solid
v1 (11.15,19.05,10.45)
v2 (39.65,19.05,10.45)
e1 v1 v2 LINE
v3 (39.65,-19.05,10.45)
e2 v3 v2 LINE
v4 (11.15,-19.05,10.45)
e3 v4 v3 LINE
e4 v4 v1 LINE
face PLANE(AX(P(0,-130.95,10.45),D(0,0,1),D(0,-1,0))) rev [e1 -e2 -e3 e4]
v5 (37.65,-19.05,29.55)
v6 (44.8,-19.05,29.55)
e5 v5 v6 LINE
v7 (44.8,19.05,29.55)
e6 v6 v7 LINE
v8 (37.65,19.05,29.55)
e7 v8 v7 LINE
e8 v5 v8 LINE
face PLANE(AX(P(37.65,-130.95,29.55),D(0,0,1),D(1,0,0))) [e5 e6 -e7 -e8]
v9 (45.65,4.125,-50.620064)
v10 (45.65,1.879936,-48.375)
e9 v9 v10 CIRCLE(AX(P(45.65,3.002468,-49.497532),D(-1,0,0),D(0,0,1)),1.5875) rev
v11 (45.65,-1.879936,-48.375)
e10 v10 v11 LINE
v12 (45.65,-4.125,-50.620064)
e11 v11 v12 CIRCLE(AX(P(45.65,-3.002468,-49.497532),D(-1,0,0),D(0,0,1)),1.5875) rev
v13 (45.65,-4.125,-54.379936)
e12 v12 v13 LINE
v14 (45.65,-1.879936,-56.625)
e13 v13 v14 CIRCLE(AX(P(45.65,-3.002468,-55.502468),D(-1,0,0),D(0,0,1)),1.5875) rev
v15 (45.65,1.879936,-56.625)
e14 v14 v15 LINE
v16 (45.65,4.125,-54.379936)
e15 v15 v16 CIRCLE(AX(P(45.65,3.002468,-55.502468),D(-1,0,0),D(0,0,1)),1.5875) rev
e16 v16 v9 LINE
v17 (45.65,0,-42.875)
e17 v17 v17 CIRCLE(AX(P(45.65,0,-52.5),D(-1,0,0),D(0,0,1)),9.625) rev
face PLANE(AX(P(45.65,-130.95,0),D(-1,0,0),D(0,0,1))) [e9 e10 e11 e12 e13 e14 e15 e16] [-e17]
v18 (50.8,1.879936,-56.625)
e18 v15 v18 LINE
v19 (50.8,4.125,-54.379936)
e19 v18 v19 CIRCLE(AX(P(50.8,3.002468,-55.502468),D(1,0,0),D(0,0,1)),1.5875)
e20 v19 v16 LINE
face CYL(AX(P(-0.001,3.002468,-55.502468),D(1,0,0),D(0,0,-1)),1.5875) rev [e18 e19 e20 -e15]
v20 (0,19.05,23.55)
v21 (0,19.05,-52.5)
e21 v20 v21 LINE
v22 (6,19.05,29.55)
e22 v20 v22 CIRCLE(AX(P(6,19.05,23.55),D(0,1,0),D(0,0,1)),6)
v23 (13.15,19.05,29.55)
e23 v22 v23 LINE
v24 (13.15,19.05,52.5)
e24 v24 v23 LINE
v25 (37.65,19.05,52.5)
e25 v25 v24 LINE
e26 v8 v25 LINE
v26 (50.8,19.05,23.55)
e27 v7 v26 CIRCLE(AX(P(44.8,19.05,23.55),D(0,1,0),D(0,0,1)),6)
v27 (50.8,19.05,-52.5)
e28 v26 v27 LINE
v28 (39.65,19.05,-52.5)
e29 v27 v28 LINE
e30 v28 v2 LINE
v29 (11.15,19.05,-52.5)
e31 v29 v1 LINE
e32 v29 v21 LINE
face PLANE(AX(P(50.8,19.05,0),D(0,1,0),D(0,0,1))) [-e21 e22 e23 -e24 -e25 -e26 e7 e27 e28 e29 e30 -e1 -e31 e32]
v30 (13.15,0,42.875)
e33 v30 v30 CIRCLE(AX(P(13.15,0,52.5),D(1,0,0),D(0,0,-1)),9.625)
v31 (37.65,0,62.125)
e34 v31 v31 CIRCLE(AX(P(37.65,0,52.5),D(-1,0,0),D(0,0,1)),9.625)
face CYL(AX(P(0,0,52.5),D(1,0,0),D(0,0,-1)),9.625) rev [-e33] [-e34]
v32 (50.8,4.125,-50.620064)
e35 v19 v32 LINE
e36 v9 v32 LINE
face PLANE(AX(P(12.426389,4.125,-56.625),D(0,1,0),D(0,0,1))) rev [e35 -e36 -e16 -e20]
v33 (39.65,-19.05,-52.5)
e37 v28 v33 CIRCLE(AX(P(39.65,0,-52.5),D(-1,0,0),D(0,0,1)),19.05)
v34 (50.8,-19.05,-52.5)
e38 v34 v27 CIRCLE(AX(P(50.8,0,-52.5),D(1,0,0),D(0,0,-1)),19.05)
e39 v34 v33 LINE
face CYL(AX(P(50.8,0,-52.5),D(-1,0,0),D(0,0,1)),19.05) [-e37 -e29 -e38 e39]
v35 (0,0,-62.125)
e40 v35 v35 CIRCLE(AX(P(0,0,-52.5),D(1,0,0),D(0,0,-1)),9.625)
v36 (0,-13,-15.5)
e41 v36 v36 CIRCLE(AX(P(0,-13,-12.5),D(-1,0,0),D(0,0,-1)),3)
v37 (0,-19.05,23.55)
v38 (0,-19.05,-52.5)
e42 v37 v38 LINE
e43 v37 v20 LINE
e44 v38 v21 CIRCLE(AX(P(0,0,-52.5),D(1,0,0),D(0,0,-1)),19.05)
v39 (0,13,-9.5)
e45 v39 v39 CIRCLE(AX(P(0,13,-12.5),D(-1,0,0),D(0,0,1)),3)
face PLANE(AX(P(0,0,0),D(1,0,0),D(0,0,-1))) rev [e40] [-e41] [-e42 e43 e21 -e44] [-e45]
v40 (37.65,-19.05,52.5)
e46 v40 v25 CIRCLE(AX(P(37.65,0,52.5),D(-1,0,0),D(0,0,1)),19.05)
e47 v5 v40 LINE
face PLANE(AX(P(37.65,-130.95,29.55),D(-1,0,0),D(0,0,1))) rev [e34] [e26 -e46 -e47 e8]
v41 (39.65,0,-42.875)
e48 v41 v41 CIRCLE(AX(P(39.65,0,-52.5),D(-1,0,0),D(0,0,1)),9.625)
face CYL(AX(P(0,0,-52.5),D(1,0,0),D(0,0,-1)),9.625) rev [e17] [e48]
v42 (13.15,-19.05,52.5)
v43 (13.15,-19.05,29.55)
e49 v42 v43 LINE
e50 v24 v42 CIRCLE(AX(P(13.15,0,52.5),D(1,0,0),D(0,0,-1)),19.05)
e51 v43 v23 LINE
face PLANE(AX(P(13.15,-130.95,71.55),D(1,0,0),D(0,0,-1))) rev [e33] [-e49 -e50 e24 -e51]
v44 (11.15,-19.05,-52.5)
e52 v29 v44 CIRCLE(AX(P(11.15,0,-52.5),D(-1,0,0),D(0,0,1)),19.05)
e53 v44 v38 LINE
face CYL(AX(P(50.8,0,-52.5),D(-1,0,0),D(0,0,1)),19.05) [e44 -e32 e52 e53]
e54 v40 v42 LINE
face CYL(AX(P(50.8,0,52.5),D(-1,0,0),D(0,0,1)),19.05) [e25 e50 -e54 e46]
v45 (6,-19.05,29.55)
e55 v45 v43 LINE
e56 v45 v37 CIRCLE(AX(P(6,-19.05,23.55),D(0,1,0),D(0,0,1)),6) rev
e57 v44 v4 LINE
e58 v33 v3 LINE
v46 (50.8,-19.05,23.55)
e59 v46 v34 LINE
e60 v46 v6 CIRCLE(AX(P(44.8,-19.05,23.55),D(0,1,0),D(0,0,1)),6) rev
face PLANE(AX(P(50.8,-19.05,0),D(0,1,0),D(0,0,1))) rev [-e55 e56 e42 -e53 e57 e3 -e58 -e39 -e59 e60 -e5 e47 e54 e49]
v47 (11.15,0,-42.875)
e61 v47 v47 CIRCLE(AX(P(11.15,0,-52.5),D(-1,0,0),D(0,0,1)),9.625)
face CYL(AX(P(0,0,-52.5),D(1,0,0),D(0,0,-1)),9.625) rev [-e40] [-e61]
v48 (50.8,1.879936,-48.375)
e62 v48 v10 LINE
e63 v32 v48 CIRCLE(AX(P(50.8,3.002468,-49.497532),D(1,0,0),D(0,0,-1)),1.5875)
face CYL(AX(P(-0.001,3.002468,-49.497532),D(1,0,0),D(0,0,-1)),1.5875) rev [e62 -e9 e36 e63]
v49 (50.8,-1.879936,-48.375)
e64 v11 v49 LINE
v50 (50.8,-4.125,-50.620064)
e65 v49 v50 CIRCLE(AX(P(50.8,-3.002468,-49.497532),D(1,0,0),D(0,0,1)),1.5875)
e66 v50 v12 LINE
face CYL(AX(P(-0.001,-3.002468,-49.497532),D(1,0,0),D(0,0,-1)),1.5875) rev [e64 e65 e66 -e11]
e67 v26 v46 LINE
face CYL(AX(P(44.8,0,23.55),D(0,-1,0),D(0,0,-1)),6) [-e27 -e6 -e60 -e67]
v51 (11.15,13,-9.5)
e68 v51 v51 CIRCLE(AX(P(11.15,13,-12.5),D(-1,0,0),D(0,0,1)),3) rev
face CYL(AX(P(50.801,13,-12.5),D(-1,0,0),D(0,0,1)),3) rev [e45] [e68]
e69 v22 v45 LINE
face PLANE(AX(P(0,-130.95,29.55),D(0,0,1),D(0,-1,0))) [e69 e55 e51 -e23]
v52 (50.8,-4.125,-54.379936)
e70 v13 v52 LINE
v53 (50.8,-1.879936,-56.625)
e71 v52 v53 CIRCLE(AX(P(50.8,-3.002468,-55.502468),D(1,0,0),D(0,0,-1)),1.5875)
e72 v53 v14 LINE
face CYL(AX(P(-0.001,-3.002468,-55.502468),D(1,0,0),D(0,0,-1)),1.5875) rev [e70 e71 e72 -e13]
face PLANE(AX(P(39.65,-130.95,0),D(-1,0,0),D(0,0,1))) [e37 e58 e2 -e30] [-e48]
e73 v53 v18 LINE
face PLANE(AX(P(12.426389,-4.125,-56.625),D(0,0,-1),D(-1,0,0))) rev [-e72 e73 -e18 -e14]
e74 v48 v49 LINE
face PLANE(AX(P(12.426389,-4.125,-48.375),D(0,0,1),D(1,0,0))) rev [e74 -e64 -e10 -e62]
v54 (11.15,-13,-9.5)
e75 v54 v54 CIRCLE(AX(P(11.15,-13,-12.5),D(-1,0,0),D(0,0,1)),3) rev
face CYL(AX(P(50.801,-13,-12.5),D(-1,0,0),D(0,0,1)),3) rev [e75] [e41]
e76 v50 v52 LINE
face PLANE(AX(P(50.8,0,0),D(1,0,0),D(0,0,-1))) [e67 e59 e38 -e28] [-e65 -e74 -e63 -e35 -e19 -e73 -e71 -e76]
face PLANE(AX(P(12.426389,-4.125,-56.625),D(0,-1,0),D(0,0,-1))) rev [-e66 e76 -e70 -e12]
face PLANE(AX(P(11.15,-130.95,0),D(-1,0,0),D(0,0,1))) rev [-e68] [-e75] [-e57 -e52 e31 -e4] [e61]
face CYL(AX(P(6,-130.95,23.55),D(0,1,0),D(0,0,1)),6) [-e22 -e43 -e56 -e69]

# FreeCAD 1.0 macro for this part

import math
import FreeCAD as App
import Part
import Sketcher

V = App.Vector
Q = App.Units.Quantity


def edges_at(feature, points):
    """Names of the edges that pass closest to the given points."""
    edges = feature.Shape.Edges
    near = lambda p: min(range(len(edges)), key=lambda i: edges[i].distToShape(Part.Vertex(*p))[0])
    return sorted({f"Edge{near(p) + 1}" for p in points})

doc = App.newDocument("Part")
params = doc.addObject("Spreadsheet::Sheet", "Params")
for row, (alias, value) in enumerate([
    ("sketch1_height", "105 mm"),
    ("sketch1_radius", "19.05 mm"),
    ("pad1_length", "50.8 mm"),
    ("sketch2_height", "82 mm"),
    ("sketch2_height2", "42 mm"),
    ("sketch2_width", "28.5 mm"),
    ("sketch2_width2", "13.15 mm"),
    ("pocket1_length", "150 mm"),
    ("sketch3_diameter", "19.25 mm"),
    ("sketch4_diameter", "19.25 mm"),
    ("sketch4_width", "8.25 mm"),
    ("pad2_length", "5.15 mm"),
    ("fillet_radius", "6 mm"),
    ("pocket3_length", "5.15 mm"),
    ("sketch6_diameter", "6 mm"),
    ("sketch7_diameter", "6 mm"),
], start=1):
    params.set(f"A{row}", alias)
    params.set(f"B{row}", "=" + value)
    params.setAlias(f"B{row}", alias)

body = doc.addObject("PartDesign::Body", "Body")

sketch1 = body.newObject("Sketcher::SketchObject", "Sketch")
sketch1.AttachmentSupport = (doc.getObject("YZ_Plane"), [""])
sketch1.MapMode = "FlatFace"
sketch1.addGeometry([
    Part.LineSegment(V(19, -52, 0), V(19, 52, 0)),
    Part.ArcOfCircle(Part.Circle(V(0, 52, 0), V(0, 0, 1), 19), math.radians(0), math.radians(180)),
    Part.LineSegment(V(-19, 52, 0), V(-19, -52, 0)),
    Part.ArcOfCircle(Part.Circle(V(0, -52, 0), V(0, 0, 1), 19), math.radians(180), math.radians(360)),
], False)
sketch1.addConstraint([
    Sketcher.Constraint("Tangent", 0, 2, 1, 1),
    Sketcher.Constraint("Tangent", 1, 2, 2, 1),
    Sketcher.Constraint("Tangent", 2, 2, 3, 1),
    Sketcher.Constraint("Tangent", 3, 2, 0, 1),
    Sketcher.Constraint("Vertical", 0),
    Sketcher.Constraint("Vertical", 2),
    Sketcher.Constraint("Symmetric", 1, 3, 3, 3, -1, 1),
    Sketcher.Constraint("DistanceY", 0, 1, 0, 2, Q("105 mm")),
    Sketcher.Constraint("Radius", 1, Q("19.05 mm")),
])
sketch1.setExpression("Constraints[7]", "Params.sketch1_height")
sketch1.setExpression("Constraints[8]", "Params.sketch1_radius")
pad1 = body.newObject("PartDesign::Pad", "Pad")
pad1.Profile = sketch1
pad1.setExpression("Length", "Params.pad1_length")

sketch2 = body.newObject("Sketcher::SketchObject", "Sketch001")
sketch2.AttachmentSupport = (doc.getObject("XZ_Plane"), [""])
sketch2.MapMode = "FlatFace"
sketch2.AttachmentOffset = App.Placement(V(0, 0, -19.05), App.Rotation())
sketch2.addGeometry([
    Part.LineSegment(V(11, -72, 0), V(11, 10, 0)),
    Part.LineSegment(V(11, 10, 0), V(40, 10, 0)),
    Part.LineSegment(V(40, 10, 0), V(40, -72, 0)),
    Part.LineSegment(V(40, -72, 0), V(11, -72, 0)),
    Part.LineSegment(V(38, 30, 0), V(38, 72, 0)),
    Part.LineSegment(V(38, 72, 0), V(51, 72, 0)),
    Part.LineSegment(V(51, 72, 0), V(51, 30, 0)),
    Part.LineSegment(V(51, 30, 0), V(38, 30, 0)),
    Part.LineSegment(V(0, 30, 0), V(0, 72, 0)),
    Part.LineSegment(V(0, 72, 0), V(13, 72, 0)),
    Part.LineSegment(V(13, 72, 0), V(13, 30, 0)),
    Part.LineSegment(V(13, 30, 0), V(0, 30, 0)),
], False)
sketch2.addConstraint([
    Sketcher.Constraint("Coincident", 0, 2, 1, 1),
    Sketcher.Constraint("Coincident", 1, 2, 2, 1),
    Sketcher.Constraint("Coincident", 2, 2, 3, 1),
    Sketcher.Constraint("Coincident", 3, 2, 0, 1),
    Sketcher.Constraint("Coincident", 4, 2, 5, 1),
    Sketcher.Constraint("Coincident", 5, 2, 6, 1),
    Sketcher.Constraint("Coincident", 6, 2, 7, 1),
    Sketcher.Constraint("Coincident", 7, 2, 4, 1),
    Sketcher.Constraint("Coincident", 8, 2, 9, 1),
    Sketcher.Constraint("Coincident", 9, 2, 10, 1),
    Sketcher.Constraint("Coincident", 10, 2, 11, 1),
    Sketcher.Constraint("Coincident", 11, 2, 8, 1),
    Sketcher.Constraint("Vertical", 0),
    Sketcher.Constraint("Horizontal", 1),
    Sketcher.Constraint("Vertical", 2),
    Sketcher.Constraint("Horizontal", 3),
    Sketcher.Constraint("Vertical", 4),
    Sketcher.Constraint("Horizontal", 5),
    Sketcher.Constraint("Vertical", 6),
    Sketcher.Constraint("Horizontal", 7),
    Sketcher.Constraint("Vertical", 8),
    Sketcher.Constraint("Horizontal", 9),
    Sketcher.Constraint("Vertical", 10),
    Sketcher.Constraint("Horizontal", 11),
    Sketcher.Constraint("PointOnObject", 8, 2, -2),
    Sketcher.Constraint("Horizontal", 5, 2, 8, 2),
    Sketcher.Constraint("Horizontal", 7, 2, 10, 2),
    Sketcher.Constraint("Equal", 7, 9),
    Sketcher.Constraint("DistanceY", 0, 1, 0, 2, Q("82 mm")),
    Sketcher.Constraint("DistanceY", 4, 1, 4, 2, Q("42 mm")),
    Sketcher.Constraint("DistanceX", 1, 1, 1, 2, Q("28.5 mm")),
    Sketcher.Constraint("DistanceX", 4, 2, 1, 2, Q("2 mm")),
    Sketcher.Constraint("DistanceX", 0, 2, 10, 2, Q("2 mm")),
    Sketcher.Constraint("DistanceX", 5, 1, 5, 2, Q("13.15 mm")),
    Sketcher.Constraint("DistanceY", 1, 2, 4, 2, Q("61.1 mm")),
    Sketcher.Constraint("DistanceY", -1, 1, 0, 2, Q("10.45 mm")),
])
sketch2.setExpression("Constraints[28]", "Params.sketch2_height")
sketch2.setExpression("Constraints[29]", "Params.sketch2_height2")
sketch2.setExpression("Constraints[30]", "Params.sketch2_width")
sketch2.setExpression("Constraints[33]", "Params.sketch2_width2")
pocket1 = body.newObject("PartDesign::Pocket", "Pocket")
pocket1.Profile = sketch2
pocket1.setExpression("Length", "Params.pocket1_length")
pocket1.Reversed = True

sketch3 = body.newObject("Sketcher::SketchObject", "Sketch002")
sketch3.AttachmentSupport = (doc.getObject("YZ_Plane"), [""])
sketch3.MapMode = "FlatFace"
sketch3.AttachmentOffset = App.Placement(V(0, 0, 50.8), App.Rotation())
sketch3.addGeometry([
    Part.Circle(V(0, 52, 0), V(0, 0, 1), 10),
    Part.Circle(V(0, -52, 0), V(0, 0, 1), 10),
], False)
sketch3.addConstraint([
    Sketcher.Constraint("Equal", 0, 1),
    Sketcher.Constraint("Symmetric", 0, 3, 1, 3, -1, 1),
    Sketcher.Constraint("PointOnObject", 0, 3, -2),
    Sketcher.Constraint("Diameter", 0, Q("19.25 mm")),
    Sketcher.Constraint("DistanceY", 1, 3, 0, 3, Q("105 mm")),
])
sketch3.setExpression("Constraints[3]", "Params.sketch3_diameter")
pocket2 = body.newObject("PartDesign::Pocket", "Pocket001")
pocket2.Profile = sketch3
pocket2.Type = "ThroughAll"

sketch4 = body.newObject("Sketcher::SketchObject", "Sketch003")
sketch4.AttachmentSupport = (doc.getObject("YZ_Plane"), [""])
sketch4.MapMode = "FlatFace"
sketch4.AttachmentOffset = App.Placement(V(0, 0, 50.8), App.Rotation())
sketch4.addGeometry([
    Part.Circle(V(0, -52, 0), V(0, 0, 1), 10),
    Part.LineSegment(V(-4, -57, 0), V(-4, -48, 0)),
    Part.LineSegment(V(-4, -48, 0), V(4, -48, 0)),
    Part.LineSegment(V(4, -48, 0), V(4, -57, 0)),
    Part.LineSegment(V(4, -57, 0), V(-4, -57, 0)),
], False)
sketch4.addConstraint([
    Sketcher.Constraint("Coincident", 1, 2, 2, 1),
    Sketcher.Constraint("Coincident", 2, 2, 3, 1),
    Sketcher.Constraint("Coincident", 3, 2, 4, 1),
    Sketcher.Constraint("Coincident", 4, 2, 1, 1),
    Sketcher.Constraint("Vertical", 1),
    Sketcher.Constraint("Horizontal", 2),
    Sketcher.Constraint("Vertical", 3),
    Sketcher.Constraint("Horizontal", 4),
    Sketcher.Constraint("PointOnObject", 0, 3, -2),
    Sketcher.Constraint("Equal", 4, 1),
    Sketcher.Constraint("Diameter", 0, Q("19.25 mm")),
    Sketcher.Constraint("DistanceX", 2, 1, 2, 2, Q("8.25 mm")),
    Sketcher.Constraint("DistanceY", 0, 3, -1, 1, Q("52.5 mm")),
    Sketcher.Constraint("DistanceX", 1, 2, -1, 1, Q("4.125 mm")),
    Sketcher.Constraint("DistanceY", 1, 2, -1, 1, Q("48.375 mm")),
])
sketch4.setExpression("Constraints[10]", "Params.sketch4_diameter")
sketch4.setExpression("Constraints[11]", "Params.sketch4_width")
pad2 = body.newObject("PartDesign::Pad", "Pad001")
pad2.Profile = sketch4
pad2.setExpression("Length", "Params.pad2_length")
pad2.Reversed = True
doc.recompute()

fillet = body.newObject("PartDesign::Fillet", "Fillet")
fillet.Base = (pad2, edges_at(pad2, [(50.8, 0, 29.55), (0, 0, 29.55)]))
fillet.setExpression("Radius", "Params.fillet_radius")

sketch5 = body.newObject("Sketcher::SketchObject", "Sketch004")
sketch5.AttachmentSupport = (doc.getObject("YZ_Plane"), [""])
sketch5.MapMode = "FlatFace"
sketch5.AttachmentOffset = App.Placement(V(0, 0, 45.65), App.Rotation())
sketch5.addGeometry([
    Part.Circle(V(3, -49.5, 0), V(0, 0, 1), 1.6),
    Part.Circle(V(3, -55.5, 0), V(0, 0, 1), 1.6),
    Part.Circle(V(-3, -55.5, 0), V(0, 0, 1), 1.6),
    Part.Circle(V(-3, -49.5, 0), V(0, 0, 1), 1.6),
], False)
sketch5.addConstraint([
    Sketcher.Constraint("Equal", 0, 1),
    Sketcher.Constraint("Equal", 1, 2),
    Sketcher.Constraint("Equal", 2, 3),
    Sketcher.Constraint("Symmetric", 1, 3, 2, 3, -2),
    Sketcher.Constraint("Symmetric", 0, 3, 3, 3, -2),
    Sketcher.Constraint("Vertical", 0, 3, 1, 3),
    Sketcher.Constraint("Diameter", 0, Q("3.175 mm")),
    Sketcher.Constraint("DistanceX", -1, 1, 0, 3, Q("3.002468 mm")),
    Sketcher.Constraint("DistanceY", 0, 3, -1, 1, Q("49.497532 mm")),
    Sketcher.Constraint("DistanceY", 1, 3, -1, 1, Q("55.502468 mm")),
])
pocket3 = body.newObject("PartDesign::Pocket", "Pocket002")
pocket3.Profile = sketch5
pocket3.setExpression("Length", "Params.pocket3_length")
pocket3.Reversed = True

sketch6 = body.newObject("Sketcher::SketchObject", "Sketch005")
sketch6.AttachmentSupport = (doc.getObject("YZ_Plane"), [""])
sketch6.MapMode = "FlatFace"
sketch6.addGeometry(Part.Circle(V(13, -12.5, 0), V(0, 0, 1), 3), False)
sketch6.addConstraint([
    Sketcher.Constraint("Diameter", 0, Q("6 mm")),
    Sketcher.Constraint("DistanceX", -1, 1, 0, 3, Q("13 mm")),
    Sketcher.Constraint("DistanceY", 0, 3, -1, 1, Q("12.5 mm")),
])
sketch6.setExpression("Constraints[0]", "Params.sketch6_diameter")
pocket4 = body.newObject("PartDesign::Pocket", "Pocket003")
pocket4.Profile = sketch6
pocket4.Type = "UpToFirst"
pocket4.Reversed = True

sketch7 = body.newObject("Sketcher::SketchObject", "Sketch006")
sketch7.AttachmentSupport = (doc.getObject("YZ_Plane"), [""])
sketch7.MapMode = "FlatFace"
sketch7.addGeometry(Part.Circle(V(-13, -12.5, 0), V(0, 0, 1), 3), False)
sketch7.addConstraint([
    Sketcher.Constraint("Diameter", 0, Q("6 mm")),
    Sketcher.Constraint("DistanceX", 0, 3, -1, 1, Q("13 mm")),
    Sketcher.Constraint("DistanceY", 0, 3, -1, 1, Q("12.5 mm")),
])
sketch7.setExpression("Constraints[0]", "Params.sketch7_diameter")
pocket5 = body.newObject("PartDesign::Pocket", "Pocket004")
pocket5.Profile = sketch7
pocket5.Type = "UpToFirst"
pocket5.Reversed = True

doc.recompute()
